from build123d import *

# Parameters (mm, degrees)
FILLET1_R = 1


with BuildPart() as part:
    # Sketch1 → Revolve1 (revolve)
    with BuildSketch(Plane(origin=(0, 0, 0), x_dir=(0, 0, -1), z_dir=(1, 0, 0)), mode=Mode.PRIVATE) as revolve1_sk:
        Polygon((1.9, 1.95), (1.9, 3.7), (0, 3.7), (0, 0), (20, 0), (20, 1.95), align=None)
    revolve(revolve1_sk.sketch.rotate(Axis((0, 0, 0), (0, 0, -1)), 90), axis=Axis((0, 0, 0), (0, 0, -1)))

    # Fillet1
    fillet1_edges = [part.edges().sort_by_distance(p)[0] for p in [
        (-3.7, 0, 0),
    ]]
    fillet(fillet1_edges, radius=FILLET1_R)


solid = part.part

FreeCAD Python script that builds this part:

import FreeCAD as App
import Part
import Sketcher

V = App.Vector
Q = App.Units.Quantity


def edges_at(feature, points):
    """Names of the edges that pass closest to the given points."""
    edges = feature.Shape.Edges
    near = lambda p: min(range(len(edges)), key=lambda i: edges[i].distToShape(Part.Vertex(*p))[0])
    return sorted({f"Edge{near(p) + 1}" for p in points})


def add_polygon(sketch, points):
    """Adds a closed chain of lines whose ends are joined by coincident constraints."""
    first, n = sketch.GeometryCount, len(points)
    for a, b in zip(points, points[1:] + points[:1]):
        sketch.addGeometry(Part.LineSegment(App.Vector(*a, 0), App.Vector(*b, 0)), False)
    for i in range(n):
        sketch.addConstraint(Sketcher.Constraint("Coincident", first + i, 2, first + (i + 1) % n, 1))

doc = App.newDocument("Part")
body = doc.addObject("PartDesign::Body", "Body")

# Sketch on YZ plane
sketch1 = body.newObject("Sketcher::SketchObject", "Sketch")
sketch1.AttachmentSupport = (doc.getObject("YZ_Plane"), [""])
sketch1.MapMode = "FlatFace"
add_polygon(sketch1, [(1.9, -1.9), (3.7, -1.9), (3.7, 0), (0, 0), (0, -20), (1.9, -20)])  # lines 0-5
sketch1.addConstraint([
    Sketcher.Constraint("Horizontal", 0),
    Sketcher.Constraint("Vertical", 1),
    Sketcher.Constraint("Horizontal", 2),
    Sketcher.Constraint("Vertical", 3),
    Sketcher.Constraint("Horizontal", 4),
    Sketcher.Constraint("Vertical", 5),
    Sketcher.Constraint("Coincident", 2, 2, -1, 1),
    Sketcher.Constraint("DistanceY", 3, 2, 3, 1, Q("20 mm")),
    Sketcher.Constraint("DistanceX", 2, 2, 2, 1, Q("3.7 mm")),
    Sketcher.Constraint("DistanceY", 1, 1, 1, 2, Q("1.9 mm")),
    Sketcher.Constraint("DistanceX", 0, 1, 0, 2, Q("1.75 mm")),
])
revolution = body.newObject("PartDesign::Revolution", "Revolution")
revolution.Profile = sketch1
revolution.ReferenceAxis = (sketch1, ["V_Axis"])
revolution.Angle = 360
doc.recompute()

fillet = body.newObject("PartDesign::Fillet", "Fillet")
fillet.Base = (revolution, edges_at(revolution, [(-3.7, 0, 0)]))
fillet.Radius = 1

doc.recompute()
